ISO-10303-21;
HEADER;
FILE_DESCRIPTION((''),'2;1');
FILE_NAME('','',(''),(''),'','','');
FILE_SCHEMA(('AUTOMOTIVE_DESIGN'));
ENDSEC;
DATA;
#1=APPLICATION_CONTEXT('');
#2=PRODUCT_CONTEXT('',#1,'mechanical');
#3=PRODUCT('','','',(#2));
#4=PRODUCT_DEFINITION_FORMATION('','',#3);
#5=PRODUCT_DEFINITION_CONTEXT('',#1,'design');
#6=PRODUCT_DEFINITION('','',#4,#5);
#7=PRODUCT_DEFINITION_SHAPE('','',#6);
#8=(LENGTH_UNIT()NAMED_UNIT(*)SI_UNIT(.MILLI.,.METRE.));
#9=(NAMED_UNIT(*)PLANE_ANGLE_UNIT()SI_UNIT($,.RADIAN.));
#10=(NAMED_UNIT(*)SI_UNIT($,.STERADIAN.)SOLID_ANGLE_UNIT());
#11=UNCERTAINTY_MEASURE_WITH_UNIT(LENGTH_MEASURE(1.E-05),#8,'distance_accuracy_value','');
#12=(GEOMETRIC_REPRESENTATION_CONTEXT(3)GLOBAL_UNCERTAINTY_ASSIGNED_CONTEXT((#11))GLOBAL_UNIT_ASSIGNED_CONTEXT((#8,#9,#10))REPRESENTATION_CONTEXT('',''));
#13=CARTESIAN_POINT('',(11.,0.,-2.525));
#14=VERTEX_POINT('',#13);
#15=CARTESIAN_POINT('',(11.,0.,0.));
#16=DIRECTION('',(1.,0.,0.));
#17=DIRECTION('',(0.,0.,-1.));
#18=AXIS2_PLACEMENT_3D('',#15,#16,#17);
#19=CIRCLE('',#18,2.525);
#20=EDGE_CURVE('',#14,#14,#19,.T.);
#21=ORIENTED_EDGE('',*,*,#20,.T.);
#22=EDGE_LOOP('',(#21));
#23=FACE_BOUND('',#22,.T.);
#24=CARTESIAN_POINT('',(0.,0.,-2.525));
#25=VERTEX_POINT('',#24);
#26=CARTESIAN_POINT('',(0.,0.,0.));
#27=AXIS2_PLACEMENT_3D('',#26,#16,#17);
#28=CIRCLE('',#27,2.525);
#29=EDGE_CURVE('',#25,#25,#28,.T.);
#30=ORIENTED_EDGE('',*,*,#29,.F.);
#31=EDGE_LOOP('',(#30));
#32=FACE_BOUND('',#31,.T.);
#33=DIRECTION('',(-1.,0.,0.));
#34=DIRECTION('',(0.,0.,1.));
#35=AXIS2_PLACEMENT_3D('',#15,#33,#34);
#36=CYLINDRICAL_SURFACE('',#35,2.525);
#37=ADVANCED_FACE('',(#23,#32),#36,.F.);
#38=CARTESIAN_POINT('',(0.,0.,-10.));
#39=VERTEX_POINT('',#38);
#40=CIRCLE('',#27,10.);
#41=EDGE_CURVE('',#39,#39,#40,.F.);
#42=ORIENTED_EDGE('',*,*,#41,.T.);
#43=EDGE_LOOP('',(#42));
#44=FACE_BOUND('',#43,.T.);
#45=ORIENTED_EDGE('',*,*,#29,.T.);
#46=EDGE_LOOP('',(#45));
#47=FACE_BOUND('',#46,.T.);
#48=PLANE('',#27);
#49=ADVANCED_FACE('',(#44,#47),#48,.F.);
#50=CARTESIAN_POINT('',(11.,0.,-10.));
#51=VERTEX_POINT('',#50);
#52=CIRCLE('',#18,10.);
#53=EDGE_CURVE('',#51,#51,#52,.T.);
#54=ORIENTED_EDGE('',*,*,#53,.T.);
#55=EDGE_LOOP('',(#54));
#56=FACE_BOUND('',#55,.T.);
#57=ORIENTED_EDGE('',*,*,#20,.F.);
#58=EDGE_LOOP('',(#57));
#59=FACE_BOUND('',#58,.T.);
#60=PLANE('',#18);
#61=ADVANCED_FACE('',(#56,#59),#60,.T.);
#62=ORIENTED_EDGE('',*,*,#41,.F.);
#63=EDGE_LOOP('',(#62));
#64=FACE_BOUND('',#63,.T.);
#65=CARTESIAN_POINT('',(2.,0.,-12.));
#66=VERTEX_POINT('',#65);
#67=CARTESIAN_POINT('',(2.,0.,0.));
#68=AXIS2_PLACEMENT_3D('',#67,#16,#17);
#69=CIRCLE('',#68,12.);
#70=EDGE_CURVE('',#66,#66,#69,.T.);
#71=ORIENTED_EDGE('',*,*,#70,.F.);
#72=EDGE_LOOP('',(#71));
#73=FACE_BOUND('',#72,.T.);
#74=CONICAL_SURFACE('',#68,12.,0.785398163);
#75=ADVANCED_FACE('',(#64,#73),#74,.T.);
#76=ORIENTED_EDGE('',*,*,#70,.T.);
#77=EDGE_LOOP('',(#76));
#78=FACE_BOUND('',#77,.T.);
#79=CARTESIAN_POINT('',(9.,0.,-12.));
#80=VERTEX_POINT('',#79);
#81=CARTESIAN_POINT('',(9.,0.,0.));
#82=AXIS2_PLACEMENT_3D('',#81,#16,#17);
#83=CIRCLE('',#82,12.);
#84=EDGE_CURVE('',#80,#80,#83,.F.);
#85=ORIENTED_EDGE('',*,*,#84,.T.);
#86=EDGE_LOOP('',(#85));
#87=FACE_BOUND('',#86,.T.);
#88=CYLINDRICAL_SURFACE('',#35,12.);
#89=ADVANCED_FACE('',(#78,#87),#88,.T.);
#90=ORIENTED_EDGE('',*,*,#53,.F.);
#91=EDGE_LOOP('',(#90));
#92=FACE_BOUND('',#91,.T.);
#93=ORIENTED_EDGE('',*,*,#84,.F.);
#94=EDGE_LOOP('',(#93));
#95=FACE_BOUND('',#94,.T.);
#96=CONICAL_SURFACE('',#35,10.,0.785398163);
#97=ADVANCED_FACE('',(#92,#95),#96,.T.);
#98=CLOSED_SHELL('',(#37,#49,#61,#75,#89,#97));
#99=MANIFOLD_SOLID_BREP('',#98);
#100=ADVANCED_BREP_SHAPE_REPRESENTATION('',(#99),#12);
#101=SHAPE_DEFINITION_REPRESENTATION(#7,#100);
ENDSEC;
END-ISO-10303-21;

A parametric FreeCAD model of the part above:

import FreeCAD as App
import Part
import Sketcher
from FreeCAD import Vector
Q = App.Units.Quantity


def edges_at(feature, points):
    """Names of the edges that pass closest to the given points."""
    edges = feature.Shape.Edges
    near = lambda p: min(range(len(edges)), key=lambda i: edges[i].distToShape(Part.Vertex(*p))[0])
    return sorted({f"Edge{near(p) + 1}" for p in points})

doc = App.newDocument("Part")
params = doc.addObject("Spreadsheet::Sheet", "Params")
for row, (alias, value) in enumerate([
    ("sketch1_diameter", "24 mm"),
    ("sketch1_diameter2", "5.05 mm"),
    ("pad1_length", "11 mm"),
    ("chamfer_size", "2 mm"),
], start=1):
    params.set(f"A{row}", alias)
    params.set(f"B{row}", "=" + value)
    params.setAlias(f"B{row}", alias)

body = doc.addObject("PartDesign::Body", "Body")

sketch1 = body.newObject("Sketcher::SketchObject", "Sketch")
sketch1.AttachmentSupport = (doc.getObject("YZ_Plane"), [""])
sketch1.MapMode = "FlatFace"
sketch1.addGeometry(Part.Circle(Vector(0, 0, 0), Vector(0, 0, 1), 12), False)
sketch1.addGeometry(Part.Circle(Vector(0, 0, 0), Vector(0, 0, 1), 2.5), False)
sketch1.addConstraint(Sketcher.Constraint("Coincident", 0, 3, -1, 1))
sketch1.addConstraint(Sketcher.Constraint("Coincident", 1, 3, -1, 1))
sketch1.addConstraint(Sketcher.Constraint("Diameter", 0, Q("24 mm")))
sketch1.addConstraint(Sketcher.Constraint("Diameter", 1, Q("5.05 mm")))
sketch1.setExpression("Constraints[2]", "Params.sketch1_diameter")
sketch1.setExpression("Constraints[3]", "Params.sketch1_diameter2")
pad1 = body.newObject("PartDesign::Pad", "Pad")
pad1.Profile = sketch1
pad1.setExpression("Length", "Params.pad1_length")
doc.recompute()

chamfer = body.newObject("PartDesign::Chamfer", "Chamfer")
chamfer.Base = (pad1, edges_at(pad1, [(0, 0, 12), (11, 0, 12)]))
chamfer.setExpression("Size", "Params.chamfer_size")

doc.recompute()
